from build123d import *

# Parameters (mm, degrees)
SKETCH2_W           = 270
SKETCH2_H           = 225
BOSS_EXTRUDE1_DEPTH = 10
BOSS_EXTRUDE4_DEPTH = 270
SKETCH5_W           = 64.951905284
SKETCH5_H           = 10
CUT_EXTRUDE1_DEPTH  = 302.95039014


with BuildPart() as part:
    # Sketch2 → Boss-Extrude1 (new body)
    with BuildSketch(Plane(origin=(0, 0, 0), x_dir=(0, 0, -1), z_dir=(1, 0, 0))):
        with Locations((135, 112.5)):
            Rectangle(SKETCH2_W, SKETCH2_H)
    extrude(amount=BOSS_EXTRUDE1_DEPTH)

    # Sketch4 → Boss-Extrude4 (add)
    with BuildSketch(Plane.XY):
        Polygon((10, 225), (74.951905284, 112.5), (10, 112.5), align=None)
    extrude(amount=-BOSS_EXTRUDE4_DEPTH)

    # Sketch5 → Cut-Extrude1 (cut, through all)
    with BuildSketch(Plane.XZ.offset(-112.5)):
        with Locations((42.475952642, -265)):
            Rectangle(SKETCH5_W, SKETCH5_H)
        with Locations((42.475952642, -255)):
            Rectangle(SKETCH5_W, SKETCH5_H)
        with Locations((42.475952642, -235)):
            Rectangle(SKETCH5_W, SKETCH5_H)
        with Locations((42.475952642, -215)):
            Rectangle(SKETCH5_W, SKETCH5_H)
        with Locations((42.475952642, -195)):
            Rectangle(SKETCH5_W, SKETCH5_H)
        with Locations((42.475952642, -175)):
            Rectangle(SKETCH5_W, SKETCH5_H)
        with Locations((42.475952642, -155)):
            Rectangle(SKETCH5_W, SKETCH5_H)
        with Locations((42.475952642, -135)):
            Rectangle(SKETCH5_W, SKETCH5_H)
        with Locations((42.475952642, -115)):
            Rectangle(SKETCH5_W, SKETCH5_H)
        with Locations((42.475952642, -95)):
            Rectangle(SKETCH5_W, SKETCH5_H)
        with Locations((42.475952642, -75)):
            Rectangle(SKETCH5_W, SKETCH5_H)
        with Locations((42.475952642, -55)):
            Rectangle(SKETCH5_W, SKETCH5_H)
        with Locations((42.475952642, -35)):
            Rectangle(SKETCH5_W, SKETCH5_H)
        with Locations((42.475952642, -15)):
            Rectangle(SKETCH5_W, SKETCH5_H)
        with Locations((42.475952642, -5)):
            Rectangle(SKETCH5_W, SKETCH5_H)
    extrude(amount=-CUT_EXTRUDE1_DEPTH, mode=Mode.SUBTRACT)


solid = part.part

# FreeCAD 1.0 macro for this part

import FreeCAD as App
import Part
import Sketcher

V = App.Vector
Q = App.Units.Quantity

doc = App.newDocument("Part")
body = doc.addObject("PartDesign::Body", "Body")

sketch1 = body.newObject("Sketcher::SketchObject", "Sketch")
sketch1.AttachmentSupport = (doc.getObject("YZ_Plane"), [""])
sketch1.MapMode = "FlatFace"
sketch1.addGeometry([
    Part.LineSegment(V(225, 0, 0), V(0, 0, 0)),
    Part.LineSegment(V(0, 0, 0), V(0, -270, 0)),
    Part.LineSegment(V(0, -270, 0), V(225, -270, 0)),
    Part.LineSegment(V(225, -270, 0), V(225, 0, 0)),
], False)
sketch1.addConstraint([
    Sketcher.Constraint("Coincident", 0, 2, 1, 1),
    Sketcher.Constraint("Coincident", 1, 2, 2, 1),
    Sketcher.Constraint("Coincident", 2, 2, 3, 1),
    Sketcher.Constraint("Coincident", 3, 2, 0, 1),
    Sketcher.Constraint("Horizontal", 0),
    Sketcher.Constraint("Vertical", 1),
    Sketcher.Constraint("Horizontal", 2),
    Sketcher.Constraint("Vertical", 3),
    Sketcher.Constraint("Coincident", 0, 2, -1, 1),
    Sketcher.Constraint("DistanceX", 0, 2, 0, 1, Q("225 mm")),
    Sketcher.Constraint("DistanceY", 1, 2, 1, 1, Q("270 mm")),
])
pad1 = body.newObject("PartDesign::Pad", "Pad")
pad1.Profile = sketch1
pad1.Length = 10

sketch2 = body.newObject("Sketcher::SketchObject", "Sketch001")
sketch2.AttachmentSupport = (doc.getObject("XY_Plane"), [""])
sketch2.MapMode = "FlatFace"
sketch2.addGeometry([
    Part.LineSegment(V(75, 112, 0), V(10, 225, 0)),
    Part.LineSegment(V(10, 225, 0), V(10, 112, 0)),
    Part.LineSegment(V(10, 112, 0), V(75, 112, 0)),
], False)
sketch2.addConstraint([
    Sketcher.Constraint("Coincident", 0, 2, 1, 1),
    Sketcher.Constraint("Coincident", 1, 2, 2, 1),
    Sketcher.Constraint("Coincident", 2, 2, 0, 1),
    Sketcher.Constraint("Vertical", 1),
    Sketcher.Constraint("Horizontal", 2),
    Sketcher.Constraint("Angle", 0, Q("120 deg")),
    Sketcher.Constraint("DistanceY", 1, 2, 1, 1, Q("112.5 mm")),
    Sketcher.Constraint("DistanceX", -1, 1, 0, 2, Q("10 mm")),
    Sketcher.Constraint("DistanceY", -1, 1, 0, 2, Q("225 mm")),
])
pad2 = body.newObject("PartDesign::Pad", "Pad001")
pad2.Profile = sketch2
pad2.Length = 270
pad2.Reversed = True

sketch3 = body.newObject("Sketcher::SketchObject", "Sketch002")
sketch3.AttachmentSupport = (doc.getObject("XZ_Plane"), [""])
sketch3.MapMode = "FlatFace"
sketch3.AttachmentOffset = App.Placement(V(0, 0, -112.5), App.Rotation())
sketch3.addGeometry([
    Part.LineSegment(V(10, -270, 0), V(75, -270, 0)),
    Part.LineSegment(V(75, -270, 0), V(75, -250, 0)),
    Part.LineSegment(V(75, -250, 0), V(10, -250, 0)),
    Part.LineSegment(V(10, -250, 0), V(10, -270, 0)),
    Part.LineSegment(V(10, -230, 0), V(10, -240, 0)),
    Part.LineSegment(V(10, -240, 0), V(75, -240, 0)),
    Part.LineSegment(V(75, -240, 0), V(75, -230, 0)),
    Part.LineSegment(V(75, -230, 0), V(10, -230, 0)),
    Part.LineSegment(V(10, -210, 0), V(10, -220, 0)),
    Part.LineSegment(V(10, -220, 0), V(75, -220, 0)),
    Part.LineSegment(V(75, -220, 0), V(75, -210, 0)),
    Part.LineSegment(V(75, -210, 0), V(10, -210, 0)),
    Part.LineSegment(V(10, -190, 0), V(10, -200, 0)),
    Part.LineSegment(V(10, -200, 0), V(75, -200, 0)),
    Part.LineSegment(V(75, -200, 0), V(75, -190, 0)),
    Part.LineSegment(V(75, -190, 0), V(10, -190, 0)),
    Part.LineSegment(V(10, -170, 0), V(10, -180, 0)),
    Part.LineSegment(V(10, -180, 0), V(75, -180, 0)),
    Part.LineSegment(V(75, -180, 0), V(75, -170, 0)),
    Part.LineSegment(V(75, -170, 0), V(10, -170, 0)),
    Part.LineSegment(V(10, -150, 0), V(10, -160, 0)),
    Part.LineSegment(V(10, -160, 0), V(75, -160, 0)),
    Part.LineSegment(V(75, -160, 0), V(75, -150, 0)),
    Part.LineSegment(V(75, -150, 0), V(10, -150, 0)),
    Part.LineSegment(V(10, -130, 0), V(10, -140, 0)),
    Part.LineSegment(V(10, -140, 0), V(75, -140, 0)),
    Part.LineSegment(V(75, -140, 0), V(75, -130, 0)),
    Part.LineSegment(V(75, -130, 0), V(10, -130, 0)),
    Part.LineSegment(V(10, -110, 0), V(10, -120, 0)),
    Part.LineSegment(V(10, -120, 0), V(75, -120, 0)),
    Part.LineSegment(V(75, -120, 0), V(75, -110, 0)),
    Part.LineSegment(V(75, -110, 0), V(10, -110, 0)),
    Part.LineSegment(V(10, -90, 0), V(10, -100, 0)),
    Part.LineSegment(V(10, -100, 0), V(75, -100, 0)),
    Part.LineSegment(V(75, -100, 0), V(75, -90, 0)),
    Part.LineSegment(V(75, -90, 0), V(10, -90, 0)),
    Part.LineSegment(V(10, -70, 0), V(10, -80, 0)),
    Part.LineSegment(V(10, -80, 0), V(75, -80, 0)),
    Part.LineSegment(V(75, -80, 0), V(75, -70, 0)),
    Part.LineSegment(V(75, -70, 0), V(10, -70, 0)),
    Part.LineSegment(V(10, -50, 0), V(10, -60, 0)),
    Part.LineSegment(V(10, -60, 0), V(75, -60, 0)),
    Part.LineSegment(V(75, -60, 0), V(75, -50, 0)),
    Part.LineSegment(V(75, -50, 0), V(10, -50, 0)),
    Part.LineSegment(V(10, -30, 0), V(10, -40, 0)),
    Part.LineSegment(V(10, -40, 0), V(75, -40, 0)),
    Part.LineSegment(V(75, -40, 0), V(75, -30, 0)),
    Part.LineSegment(V(75, -30, 0), V(10, -30, 0)),
    Part.LineSegment(V(10, -20, 0), V(75, -20, 0)),
    Part.LineSegment(V(75, -20, 0), V(75, 0, 0)),
    Part.LineSegment(V(75, 0, 0), V(10, 0, 0)),
    Part.LineSegment(V(10, 0, 0), V(10, -20, 0)),
], False)
sketch3.addConstraint([
    Sketcher.Constraint("Coincident", 0, 2, 1, 1),
    Sketcher.Constraint("Coincident", 1, 2, 2, 1),
    Sketcher.Constraint("Coincident", 2, 2, 3, 1),
    Sketcher.Constraint("Coincident", 3, 2, 0, 1),
    Sketcher.Constraint("Coincident", 4, 2, 5, 1),
    Sketcher.Constraint("Coincident", 5, 2, 6, 1),
    Sketcher.Constraint("Coincident", 6, 2, 7, 1),
    Sketcher.Constraint("Coincident", 7, 2, 4, 1),
    Sketcher.Constraint("Coincident", 8, 2, 9, 1),
    Sketcher.Constraint("Coincident", 9, 2, 10, 1),
    Sketcher.Constraint("Coincident", 10, 2, 11, 1),
    Sketcher.Constraint("Coincident", 11, 2, 8, 1),
    Sketcher.Constraint("Coincident", 12, 2, 13, 1),
    Sketcher.Constraint("Coincident", 13, 2, 14, 1),
    Sketcher.Constraint("Coincident", 14, 2, 15, 1),
    Sketcher.Constraint("Coincident", 15, 2, 12, 1),
    Sketcher.Constraint("Coincident", 16, 2, 17, 1),
    Sketcher.Constraint("Coincident", 17, 2, 18, 1),
    Sketcher.Constraint("Coincident", 18, 2, 19, 1),
    Sketcher.Constraint("Coincident", 19, 2, 16, 1),
    Sketcher.Constraint("Coincident", 20, 2, 21, 1),
    Sketcher.Constraint("Coincident", 21, 2, 22, 1),
    Sketcher.Constraint("Coincident", 22, 2, 23, 1),
    Sketcher.Constraint("Coincident", 23, 2, 20, 1),
    Sketcher.Constraint("Coincident", 24, 2, 25, 1),
    Sketcher.Constraint("Coincident", 25, 2, 26, 1),
    Sketcher.Constraint("Coincident", 26, 2, 27, 1),
    Sketcher.Constraint("Coincident", 27, 2, 24, 1),
    Sketcher.Constraint("Coincident", 28, 2, 29, 1),
    Sketcher.Constraint("Coincident", 29, 2, 30, 1),
    Sketcher.Constraint("Coincident", 30, 2, 31, 1),
    Sketcher.Constraint("Coincident", 31, 2, 28, 1),
    Sketcher.Constraint("Coincident", 32, 2, 33, 1),
    Sketcher.Constraint("Coincident", 33, 2, 34, 1),
    Sketcher.Constraint("Coincident", 34, 2, 35, 1),
    Sketcher.Constraint("Coincident", 35, 2, 32, 1),
    Sketcher.Constraint("Coincident", 36, 2, 37, 1),
    Sketcher.Constraint("Coincident", 37, 2, 38, 1),
    Sketcher.Constraint("Coincident", 38, 2, 39, 1),
    Sketcher.Constraint("Coincident", 39, 2, 36, 1),
    Sketcher.Constraint("Coincident", 40, 2, 41, 1),
    Sketcher.Constraint("Coincident", 41, 2, 42, 1),
    Sketcher.Constraint("Coincident", 42, 2, 43, 1),
    Sketcher.Constraint("Coincident", 43, 2, 40, 1),
    Sketcher.Constraint("Coincident", 44, 2, 45, 1),
    Sketcher.Constraint("Coincident", 45, 2, 46, 1),
    Sketcher.Constraint("Coincident", 46, 2, 47, 1),
    Sketcher.Constraint("Coincident", 47, 2, 44, 1),
    Sketcher.Constraint("Coincident", 48, 2, 49, 1),
    Sketcher.Constraint("Coincident", 49, 2, 50, 1),
    Sketcher.Constraint("Coincident", 50, 2, 51, 1),
    Sketcher.Constraint("Coincident", 51, 2, 48, 1),
    Sketcher.Constraint("Horizontal", 0),
    Sketcher.Constraint("Vertical", 1),
    Sketcher.Constraint("Horizontal", 2),
    Sketcher.Constraint("Vertical", 3),
    Sketcher.Constraint("Vertical", 4),
    Sketcher.Constraint("Horizontal", 5),
    Sketcher.Constraint("Vertical", 6),
    Sketcher.Constraint("Horizontal", 7),
    Sketcher.Constraint("Vertical", 8),
    Sketcher.Constraint("Horizontal", 9),
    Sketcher.Constraint("Vertical", 10),
    Sketcher.Constraint("Horizontal", 11),
    Sketcher.Constraint("Vertical", 12),
    Sketcher.Constraint("Horizontal", 13),
    Sketcher.Constraint("Vertical", 14),
    Sketcher.Constraint("Horizontal", 15),
    Sketcher.Constraint("Vertical", 16),
    Sketcher.Constraint("Horizontal", 17),
    Sketcher.Constraint("Vertical", 18),
    Sketcher.Constraint("Horizontal", 19),
    Sketcher.Constraint("Vertical", 20),
    Sketcher.Constraint("Horizontal", 21),
    Sketcher.Constraint("Vertical", 22),
    Sketcher.Constraint("Horizontal", 23),
    Sketcher.Constraint("Vertical", 24),
    Sketcher.Constraint("Horizontal", 25),
    Sketcher.Constraint("Vertical", 26),
    Sketcher.Constraint("Horizontal", 27),
    Sketcher.Constraint("Vertical", 28),
    Sketcher.Constraint("Horizontal", 29),
    Sketcher.Constraint("Vertical", 30),
    Sketcher.Constraint("Horizontal", 31),
    Sketcher.Constraint("Vertical", 32),
    Sketcher.Constraint("Horizontal", 33),
    Sketcher.Constraint("Vertical", 34),
    Sketcher.Constraint("Horizontal", 35),
    Sketcher.Constraint("Vertical", 36),
    Sketcher.Constraint("Horizontal", 37),
    Sketcher.Constraint("Vertical", 38),
    Sketcher.Constraint("Horizontal", 39),
    Sketcher.Constraint("Vertical", 40),
    Sketcher.Constraint("Horizontal", 41),
    Sketcher.Constraint("Vertical", 42),
    Sketcher.Constraint("Horizontal", 43),
    Sketcher.Constraint("Vertical", 44),
    Sketcher.Constraint("Horizontal", 45),
    Sketcher.Constraint("Vertical", 46),
    Sketcher.Constraint("Horizontal", 47),
    Sketcher.Constraint("Horizontal", 48),
    Sketcher.Constraint("Vertical", 49),
    Sketcher.Constraint("Horizontal", 50),
    Sketcher.Constraint("Vertical", 51),
    Sketcher.Constraint("PointOnObject", 49, 2, -1),
    Sketcher.Constraint("Vertical", 3, 2, 4, 2),
    Sketcher.Constraint("Vertical", 1, 2, 5, 2),
    Sketcher.Constraint("Vertical", 7, 2, 8, 2),
    Sketcher.Constraint("Vertical", 6, 2, 9, 2),
    Sketcher.Constraint("Vertical", 11, 2, 12, 2),
    Sketcher.Constraint("Vertical", 10, 2, 13, 2),
    Sketcher.Constraint("Vertical", 15, 2, 16, 2),
    Sketcher.Constraint("Vertical", 14, 2, 17, 2),
    Sketcher.Constraint("Vertical", 19, 2, 20, 2),
    Sketcher.Constraint("Vertical", 18, 2, 21, 2),
    Sketcher.Constraint("Vertical", 23, 2, 24, 2),
    Sketcher.Constraint("Vertical", 22, 2, 25, 2),
    Sketcher.Constraint("Vertical", 27, 2, 28, 2),
    Sketcher.Constraint("Vertical", 26, 2, 29, 2),
    Sketcher.Constraint("Vertical", 31, 2, 32, 2),
    Sketcher.Constraint("Vertical", 30, 2, 33, 2),
    Sketcher.Constraint("Vertical", 35, 2, 36, 2),
    Sketcher.Constraint("Vertical", 34, 2, 37, 2),
    Sketcher.Constraint("Vertical", 39, 2, 40, 2),
    Sketcher.Constraint("Vertical", 38, 2, 41, 2),
    Sketcher.Constraint("Vertical", 43, 2, 44, 2),
    Sketcher.Constraint("Vertical", 42, 2, 45, 2),
    Sketcher.Constraint("Vertical", 46, 2, 48, 2),
    Sketcher.Constraint("Vertical", 47, 2, 50, 2),
    Sketcher.Constraint("Equal", 6, 8),
    Sketcher.Constraint("Equal", 10, 12),
    Sketcher.Constraint("Equal", 14, 16),
    Sketcher.Constraint("Equal", 18, 20),
    Sketcher.Constraint("Equal", 22, 24),
    Sketcher.Constraint("Equal", 26, 28),
    Sketcher.Constraint("Equal", 30, 32),
    Sketcher.Constraint("Equal", 34, 36),
    Sketcher.Constraint("Equal", 38, 40),
    Sketcher.Constraint("Equal", 42, 44),
    Sketcher.Constraint("Equal", 3, 49),
    Sketcher.Constraint("DistanceY", 1, 1, 1, 2, Q("20 mm")),
    Sketcher.Constraint("DistanceY", 4, 2, 4, 1, Q("10 mm")),
    Sketcher.Constraint("DistanceY", 0, 2, -1, 1, Q("270 mm")),
    Sketcher.Constraint("DistanceX", -1, 1, 2, 2, Q("10 mm")),
    Sketcher.Constraint("DistanceY", 4, 2, -1, 1, Q("240 mm")),
    Sketcher.Constraint("DistanceY", 8, 2, -1, 1, Q("220 mm")),
    Sketcher.Constraint("DistanceY", 12, 2, -1, 1, Q("200 mm")),
    Sketcher.Constraint("DistanceY", 16, 2, -1, 1, Q("180 mm")),
    Sketcher.Constraint("DistanceY", 20, 2, -1, 1, Q("160 mm")),
    Sketcher.Constraint("DistanceY", 24, 2, -1, 1, Q("140 mm")),
    Sketcher.Constraint("DistanceY", 28, 2, -1, 1, Q("120 mm")),
    Sketcher.Constraint("DistanceY", 32, 2, -1, 1, Q("100 mm")),
    Sketcher.Constraint("DistanceY", 36, 2, -1, 1, Q("80 mm")),
    Sketcher.Constraint("DistanceY", 40, 2, -1, 1, Q("60 mm")),
    Sketcher.Constraint("DistanceY", 44, 2, -1, 1, Q("40 mm")),
    Sketcher.Constraint("DistanceX", 0, 1, 0, 2, Q("64.951905 mm")),
])
pocket1 = body.newObject("PartDesign::Pocket", "Pocket")
pocket1.Profile = sketch3
pocket1.Type = "ThroughAll"

doc.recompute()
